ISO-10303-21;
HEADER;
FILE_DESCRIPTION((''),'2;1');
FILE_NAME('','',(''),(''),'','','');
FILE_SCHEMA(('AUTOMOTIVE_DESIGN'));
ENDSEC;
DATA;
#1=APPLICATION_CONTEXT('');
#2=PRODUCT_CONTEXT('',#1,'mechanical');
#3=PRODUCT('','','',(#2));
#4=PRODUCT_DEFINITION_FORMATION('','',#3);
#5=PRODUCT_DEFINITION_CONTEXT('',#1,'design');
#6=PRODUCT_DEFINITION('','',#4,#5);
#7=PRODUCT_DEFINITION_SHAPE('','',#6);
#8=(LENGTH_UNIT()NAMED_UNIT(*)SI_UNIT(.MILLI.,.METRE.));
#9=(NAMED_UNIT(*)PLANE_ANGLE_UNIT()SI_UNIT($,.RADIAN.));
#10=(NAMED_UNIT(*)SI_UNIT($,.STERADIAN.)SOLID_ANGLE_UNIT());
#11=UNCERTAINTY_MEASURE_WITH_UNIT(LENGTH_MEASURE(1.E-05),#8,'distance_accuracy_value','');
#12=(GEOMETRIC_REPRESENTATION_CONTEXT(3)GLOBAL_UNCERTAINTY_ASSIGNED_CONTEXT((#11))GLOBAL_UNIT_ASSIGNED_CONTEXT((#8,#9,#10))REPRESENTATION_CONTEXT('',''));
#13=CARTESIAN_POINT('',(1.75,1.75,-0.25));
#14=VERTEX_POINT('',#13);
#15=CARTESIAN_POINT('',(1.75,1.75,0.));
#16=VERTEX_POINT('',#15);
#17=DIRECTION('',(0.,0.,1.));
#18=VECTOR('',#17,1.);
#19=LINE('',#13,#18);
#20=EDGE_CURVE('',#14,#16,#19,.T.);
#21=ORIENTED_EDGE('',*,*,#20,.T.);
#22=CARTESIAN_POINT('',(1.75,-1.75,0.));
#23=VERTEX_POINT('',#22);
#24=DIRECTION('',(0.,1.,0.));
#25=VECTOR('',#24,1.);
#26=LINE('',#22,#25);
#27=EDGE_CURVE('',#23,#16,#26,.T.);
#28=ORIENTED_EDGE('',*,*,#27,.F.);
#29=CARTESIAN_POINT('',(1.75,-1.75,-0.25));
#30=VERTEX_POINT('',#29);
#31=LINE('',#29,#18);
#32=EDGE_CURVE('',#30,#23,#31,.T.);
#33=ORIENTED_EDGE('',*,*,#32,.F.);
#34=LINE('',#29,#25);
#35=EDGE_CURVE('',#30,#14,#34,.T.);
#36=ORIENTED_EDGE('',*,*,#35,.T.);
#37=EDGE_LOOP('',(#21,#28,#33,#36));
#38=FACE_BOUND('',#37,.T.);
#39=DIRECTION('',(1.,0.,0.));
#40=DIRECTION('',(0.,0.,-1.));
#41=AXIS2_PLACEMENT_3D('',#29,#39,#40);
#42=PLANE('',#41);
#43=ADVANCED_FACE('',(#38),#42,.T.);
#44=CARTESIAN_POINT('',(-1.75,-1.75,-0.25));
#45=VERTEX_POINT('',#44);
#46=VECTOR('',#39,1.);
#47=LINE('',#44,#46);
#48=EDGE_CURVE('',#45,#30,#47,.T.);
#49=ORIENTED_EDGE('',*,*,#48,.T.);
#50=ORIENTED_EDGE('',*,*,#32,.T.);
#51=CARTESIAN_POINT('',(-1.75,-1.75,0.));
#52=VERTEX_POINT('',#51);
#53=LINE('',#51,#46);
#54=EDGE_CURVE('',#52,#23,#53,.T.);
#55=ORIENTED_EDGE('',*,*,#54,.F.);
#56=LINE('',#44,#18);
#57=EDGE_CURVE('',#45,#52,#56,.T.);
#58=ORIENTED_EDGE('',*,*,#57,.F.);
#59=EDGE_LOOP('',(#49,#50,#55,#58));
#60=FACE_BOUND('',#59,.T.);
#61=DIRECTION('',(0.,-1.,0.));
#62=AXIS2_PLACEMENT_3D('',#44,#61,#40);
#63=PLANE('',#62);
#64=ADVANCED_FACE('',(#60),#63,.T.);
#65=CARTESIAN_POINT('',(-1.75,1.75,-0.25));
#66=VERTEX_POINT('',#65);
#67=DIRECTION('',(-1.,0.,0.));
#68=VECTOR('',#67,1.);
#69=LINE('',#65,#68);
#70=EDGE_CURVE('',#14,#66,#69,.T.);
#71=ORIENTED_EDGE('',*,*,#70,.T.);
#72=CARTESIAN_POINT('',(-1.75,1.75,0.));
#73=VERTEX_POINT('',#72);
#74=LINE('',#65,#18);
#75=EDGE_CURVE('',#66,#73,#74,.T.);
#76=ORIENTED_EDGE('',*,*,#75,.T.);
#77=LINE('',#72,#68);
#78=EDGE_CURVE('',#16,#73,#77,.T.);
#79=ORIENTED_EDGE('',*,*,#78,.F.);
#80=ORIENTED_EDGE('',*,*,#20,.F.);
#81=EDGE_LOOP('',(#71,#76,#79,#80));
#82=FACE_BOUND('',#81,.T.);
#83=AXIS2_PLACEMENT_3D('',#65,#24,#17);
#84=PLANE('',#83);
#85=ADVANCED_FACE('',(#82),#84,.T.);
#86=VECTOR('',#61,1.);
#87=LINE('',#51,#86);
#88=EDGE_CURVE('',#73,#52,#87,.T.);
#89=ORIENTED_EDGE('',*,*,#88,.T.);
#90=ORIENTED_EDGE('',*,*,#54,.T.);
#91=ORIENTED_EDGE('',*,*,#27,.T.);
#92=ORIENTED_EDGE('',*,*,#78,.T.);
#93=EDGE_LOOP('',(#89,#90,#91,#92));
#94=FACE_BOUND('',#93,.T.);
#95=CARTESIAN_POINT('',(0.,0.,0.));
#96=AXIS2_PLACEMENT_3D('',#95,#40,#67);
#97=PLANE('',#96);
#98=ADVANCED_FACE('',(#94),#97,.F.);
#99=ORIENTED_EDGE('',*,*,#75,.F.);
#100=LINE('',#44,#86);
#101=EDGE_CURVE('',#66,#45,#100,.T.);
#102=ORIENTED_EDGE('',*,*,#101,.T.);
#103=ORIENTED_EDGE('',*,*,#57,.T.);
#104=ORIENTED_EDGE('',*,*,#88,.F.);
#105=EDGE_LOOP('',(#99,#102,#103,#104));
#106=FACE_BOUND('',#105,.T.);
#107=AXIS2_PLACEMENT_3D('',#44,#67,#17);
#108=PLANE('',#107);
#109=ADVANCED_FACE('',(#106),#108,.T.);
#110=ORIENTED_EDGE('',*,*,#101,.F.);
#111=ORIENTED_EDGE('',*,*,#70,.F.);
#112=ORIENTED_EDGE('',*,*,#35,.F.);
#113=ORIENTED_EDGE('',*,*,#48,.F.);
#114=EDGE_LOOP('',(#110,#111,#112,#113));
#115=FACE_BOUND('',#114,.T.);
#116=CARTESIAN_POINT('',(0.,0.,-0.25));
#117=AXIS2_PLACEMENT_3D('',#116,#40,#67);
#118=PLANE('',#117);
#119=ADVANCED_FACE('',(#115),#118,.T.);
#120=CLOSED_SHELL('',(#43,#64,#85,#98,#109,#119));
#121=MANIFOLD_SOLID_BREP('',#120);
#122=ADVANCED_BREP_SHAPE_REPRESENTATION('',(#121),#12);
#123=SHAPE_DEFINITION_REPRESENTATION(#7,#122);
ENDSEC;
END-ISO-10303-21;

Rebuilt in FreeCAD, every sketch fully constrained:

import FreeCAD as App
import Part
import Sketcher
Q = App.Units.Quantity


def add_polygon(sketch, points):
    """Adds a closed chain of lines whose ends are joined by coincident constraints."""
    first, n = sketch.GeometryCount, len(points)
    for a, b in zip(points, points[1:] + points[:1]):
        sketch.addGeometry(Part.LineSegment(App.Vector(*a, 0), App.Vector(*b, 0)), False)
    for i in range(n):
        sketch.addConstraint(Sketcher.Constraint("Coincident", first + i, 2, first + (i + 1) % n, 1))

doc = App.newDocument("Part")
params = doc.addObject("Spreadsheet::Sheet", "Params")
for row, (alias, value) in enumerate([
    ("sketch1_width", "3.5 mm"),
    ("pad1_length", "0.25 mm"),
], start=1):
    params.set(f"A{row}", alias)
    params.set(f"B{row}", "=" + value)
    params.setAlias(f"B{row}", alias)

body = doc.addObject("PartDesign::Body", "Body")

sketch1 = doc.addObject("Sketcher::SketchObject", "Sketch")
body.addObject(sketch1)
sketch1.AttachmentSupport = (doc.XY_Plane, [""])
sketch1.MapMode = "FlatFace"
add_polygon(sketch1, [(-1.8, 1.8), (-1.8, -1.8), (1.8, -1.8), (1.8, 1.8)])
sketch1.addConstraint([
    Sketcher.Constraint("Vertical", 0),
    Sketcher.Constraint("Horizontal", 1),
    Sketcher.Constraint("Vertical", 2),
    Sketcher.Constraint("Horizontal", 3),
    Sketcher.Constraint("Symmetric", 0, 2, 2, 2, -1, 1),
    Sketcher.Constraint("Equal", 3, 0),
    Sketcher.Constraint("DistanceX", 1, 1, 1, 2, Q("3.5 mm")),
])
sketch1.setExpression("Constraints[10]", "Params.sketch1_width")
pad1 = doc.addObject("PartDesign::Pad", "Pad")
body.addObject(pad1)
pad1.Profile = sketch1
pad1.setExpression("Length", "Params.pad1_length")
pad1.Reversed = True

doc.recompute()
